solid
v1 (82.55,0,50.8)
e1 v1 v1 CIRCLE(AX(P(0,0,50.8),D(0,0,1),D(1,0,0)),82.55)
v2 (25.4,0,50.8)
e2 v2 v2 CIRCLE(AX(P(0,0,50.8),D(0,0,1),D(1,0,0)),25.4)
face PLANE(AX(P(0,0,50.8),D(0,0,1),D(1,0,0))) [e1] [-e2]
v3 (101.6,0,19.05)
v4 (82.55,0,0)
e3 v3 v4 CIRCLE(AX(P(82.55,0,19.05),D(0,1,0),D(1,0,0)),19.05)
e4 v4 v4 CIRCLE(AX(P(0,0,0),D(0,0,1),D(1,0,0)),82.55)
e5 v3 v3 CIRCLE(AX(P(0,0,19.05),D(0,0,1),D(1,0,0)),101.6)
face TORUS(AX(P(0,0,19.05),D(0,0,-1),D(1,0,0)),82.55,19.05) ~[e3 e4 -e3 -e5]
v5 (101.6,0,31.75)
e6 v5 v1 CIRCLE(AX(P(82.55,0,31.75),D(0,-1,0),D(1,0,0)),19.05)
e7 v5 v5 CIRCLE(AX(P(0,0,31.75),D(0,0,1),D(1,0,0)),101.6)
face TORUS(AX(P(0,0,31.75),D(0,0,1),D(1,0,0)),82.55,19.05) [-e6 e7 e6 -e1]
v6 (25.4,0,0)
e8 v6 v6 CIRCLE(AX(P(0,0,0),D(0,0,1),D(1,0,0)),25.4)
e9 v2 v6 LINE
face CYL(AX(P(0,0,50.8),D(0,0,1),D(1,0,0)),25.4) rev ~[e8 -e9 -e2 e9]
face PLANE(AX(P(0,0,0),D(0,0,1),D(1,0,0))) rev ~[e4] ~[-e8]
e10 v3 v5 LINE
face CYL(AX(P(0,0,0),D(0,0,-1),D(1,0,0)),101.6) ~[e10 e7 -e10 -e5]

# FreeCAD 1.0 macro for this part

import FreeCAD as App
import Part
import Sketcher
Q = App.Units.Quantity


def edges_at(feature, points):
    """Names of the edges that pass closest to the given points."""
    edges = feature.Shape.Edges
    near = lambda p: min(range(len(edges)), key=lambda i: edges[i].distToShape(Part.Vertex(*p))[0])
    return sorted({f"Edge{near(p) + 1}" for p in points})

doc = App.newDocument("Part")
body = doc.addObject("PartDesign::Body", "Body")

# Sketch on XY plane
sketch1 = body.newObject("Sketcher::SketchObject", "Sketch")
sketch1.AttachmentSupport = (doc.getObject("XY_Plane"), [""])
sketch1.MapMode = "FlatFace"
sketch1.addGeometry(Part.Circle(App.Vector(0, 0, 0), App.Vector(0, 0, 1), 102), False)
sketch1.addConstraint([
    Sketcher.Constraint("Coincident", 0, 3, -1, 1),
    Sketcher.Constraint("Diameter", 0, Q("8 in")),
])
pad1 = body.newObject("PartDesign::Pad", "Pad")
pad1.Profile = sketch1
pad1.Length = Q("2 in")
doc.recompute()

fillet = body.newObject("PartDesign::Fillet", "Fillet")
fillet.Base = (pad1, edges_at(pad1, [(-101.6, 0, 50.8), (-101.6, 0, 0)]))
fillet.Radius = Q("0.75 in")

# Sketch on XY plane
sketch2 = body.newObject("Sketcher::SketchObject", "Sketch001")
sketch2.AttachmentSupport = (doc.getObject("XY_Plane"), [""])
sketch2.MapMode = "FlatFace"
sketch2.AttachmentOffset = App.Placement(App.Vector(0, 0, 2 * 25.4), App.Rotation())
sketch2.addGeometry(Part.Circle(App.Vector(0, 0, 0), App.Vector(0, 0, 1), 25), False)
sketch2.addConstraint([
    Sketcher.Constraint("Coincident", 0, 3, -1, 1),
    Sketcher.Constraint("Diameter", 0, Q("2 in")),
])
pocket1 = body.newObject("PartDesign::Pocket", "Pocket")
pocket1.Profile = sketch2
pocket1.Type = "ThroughAll"

doc.recompute()
